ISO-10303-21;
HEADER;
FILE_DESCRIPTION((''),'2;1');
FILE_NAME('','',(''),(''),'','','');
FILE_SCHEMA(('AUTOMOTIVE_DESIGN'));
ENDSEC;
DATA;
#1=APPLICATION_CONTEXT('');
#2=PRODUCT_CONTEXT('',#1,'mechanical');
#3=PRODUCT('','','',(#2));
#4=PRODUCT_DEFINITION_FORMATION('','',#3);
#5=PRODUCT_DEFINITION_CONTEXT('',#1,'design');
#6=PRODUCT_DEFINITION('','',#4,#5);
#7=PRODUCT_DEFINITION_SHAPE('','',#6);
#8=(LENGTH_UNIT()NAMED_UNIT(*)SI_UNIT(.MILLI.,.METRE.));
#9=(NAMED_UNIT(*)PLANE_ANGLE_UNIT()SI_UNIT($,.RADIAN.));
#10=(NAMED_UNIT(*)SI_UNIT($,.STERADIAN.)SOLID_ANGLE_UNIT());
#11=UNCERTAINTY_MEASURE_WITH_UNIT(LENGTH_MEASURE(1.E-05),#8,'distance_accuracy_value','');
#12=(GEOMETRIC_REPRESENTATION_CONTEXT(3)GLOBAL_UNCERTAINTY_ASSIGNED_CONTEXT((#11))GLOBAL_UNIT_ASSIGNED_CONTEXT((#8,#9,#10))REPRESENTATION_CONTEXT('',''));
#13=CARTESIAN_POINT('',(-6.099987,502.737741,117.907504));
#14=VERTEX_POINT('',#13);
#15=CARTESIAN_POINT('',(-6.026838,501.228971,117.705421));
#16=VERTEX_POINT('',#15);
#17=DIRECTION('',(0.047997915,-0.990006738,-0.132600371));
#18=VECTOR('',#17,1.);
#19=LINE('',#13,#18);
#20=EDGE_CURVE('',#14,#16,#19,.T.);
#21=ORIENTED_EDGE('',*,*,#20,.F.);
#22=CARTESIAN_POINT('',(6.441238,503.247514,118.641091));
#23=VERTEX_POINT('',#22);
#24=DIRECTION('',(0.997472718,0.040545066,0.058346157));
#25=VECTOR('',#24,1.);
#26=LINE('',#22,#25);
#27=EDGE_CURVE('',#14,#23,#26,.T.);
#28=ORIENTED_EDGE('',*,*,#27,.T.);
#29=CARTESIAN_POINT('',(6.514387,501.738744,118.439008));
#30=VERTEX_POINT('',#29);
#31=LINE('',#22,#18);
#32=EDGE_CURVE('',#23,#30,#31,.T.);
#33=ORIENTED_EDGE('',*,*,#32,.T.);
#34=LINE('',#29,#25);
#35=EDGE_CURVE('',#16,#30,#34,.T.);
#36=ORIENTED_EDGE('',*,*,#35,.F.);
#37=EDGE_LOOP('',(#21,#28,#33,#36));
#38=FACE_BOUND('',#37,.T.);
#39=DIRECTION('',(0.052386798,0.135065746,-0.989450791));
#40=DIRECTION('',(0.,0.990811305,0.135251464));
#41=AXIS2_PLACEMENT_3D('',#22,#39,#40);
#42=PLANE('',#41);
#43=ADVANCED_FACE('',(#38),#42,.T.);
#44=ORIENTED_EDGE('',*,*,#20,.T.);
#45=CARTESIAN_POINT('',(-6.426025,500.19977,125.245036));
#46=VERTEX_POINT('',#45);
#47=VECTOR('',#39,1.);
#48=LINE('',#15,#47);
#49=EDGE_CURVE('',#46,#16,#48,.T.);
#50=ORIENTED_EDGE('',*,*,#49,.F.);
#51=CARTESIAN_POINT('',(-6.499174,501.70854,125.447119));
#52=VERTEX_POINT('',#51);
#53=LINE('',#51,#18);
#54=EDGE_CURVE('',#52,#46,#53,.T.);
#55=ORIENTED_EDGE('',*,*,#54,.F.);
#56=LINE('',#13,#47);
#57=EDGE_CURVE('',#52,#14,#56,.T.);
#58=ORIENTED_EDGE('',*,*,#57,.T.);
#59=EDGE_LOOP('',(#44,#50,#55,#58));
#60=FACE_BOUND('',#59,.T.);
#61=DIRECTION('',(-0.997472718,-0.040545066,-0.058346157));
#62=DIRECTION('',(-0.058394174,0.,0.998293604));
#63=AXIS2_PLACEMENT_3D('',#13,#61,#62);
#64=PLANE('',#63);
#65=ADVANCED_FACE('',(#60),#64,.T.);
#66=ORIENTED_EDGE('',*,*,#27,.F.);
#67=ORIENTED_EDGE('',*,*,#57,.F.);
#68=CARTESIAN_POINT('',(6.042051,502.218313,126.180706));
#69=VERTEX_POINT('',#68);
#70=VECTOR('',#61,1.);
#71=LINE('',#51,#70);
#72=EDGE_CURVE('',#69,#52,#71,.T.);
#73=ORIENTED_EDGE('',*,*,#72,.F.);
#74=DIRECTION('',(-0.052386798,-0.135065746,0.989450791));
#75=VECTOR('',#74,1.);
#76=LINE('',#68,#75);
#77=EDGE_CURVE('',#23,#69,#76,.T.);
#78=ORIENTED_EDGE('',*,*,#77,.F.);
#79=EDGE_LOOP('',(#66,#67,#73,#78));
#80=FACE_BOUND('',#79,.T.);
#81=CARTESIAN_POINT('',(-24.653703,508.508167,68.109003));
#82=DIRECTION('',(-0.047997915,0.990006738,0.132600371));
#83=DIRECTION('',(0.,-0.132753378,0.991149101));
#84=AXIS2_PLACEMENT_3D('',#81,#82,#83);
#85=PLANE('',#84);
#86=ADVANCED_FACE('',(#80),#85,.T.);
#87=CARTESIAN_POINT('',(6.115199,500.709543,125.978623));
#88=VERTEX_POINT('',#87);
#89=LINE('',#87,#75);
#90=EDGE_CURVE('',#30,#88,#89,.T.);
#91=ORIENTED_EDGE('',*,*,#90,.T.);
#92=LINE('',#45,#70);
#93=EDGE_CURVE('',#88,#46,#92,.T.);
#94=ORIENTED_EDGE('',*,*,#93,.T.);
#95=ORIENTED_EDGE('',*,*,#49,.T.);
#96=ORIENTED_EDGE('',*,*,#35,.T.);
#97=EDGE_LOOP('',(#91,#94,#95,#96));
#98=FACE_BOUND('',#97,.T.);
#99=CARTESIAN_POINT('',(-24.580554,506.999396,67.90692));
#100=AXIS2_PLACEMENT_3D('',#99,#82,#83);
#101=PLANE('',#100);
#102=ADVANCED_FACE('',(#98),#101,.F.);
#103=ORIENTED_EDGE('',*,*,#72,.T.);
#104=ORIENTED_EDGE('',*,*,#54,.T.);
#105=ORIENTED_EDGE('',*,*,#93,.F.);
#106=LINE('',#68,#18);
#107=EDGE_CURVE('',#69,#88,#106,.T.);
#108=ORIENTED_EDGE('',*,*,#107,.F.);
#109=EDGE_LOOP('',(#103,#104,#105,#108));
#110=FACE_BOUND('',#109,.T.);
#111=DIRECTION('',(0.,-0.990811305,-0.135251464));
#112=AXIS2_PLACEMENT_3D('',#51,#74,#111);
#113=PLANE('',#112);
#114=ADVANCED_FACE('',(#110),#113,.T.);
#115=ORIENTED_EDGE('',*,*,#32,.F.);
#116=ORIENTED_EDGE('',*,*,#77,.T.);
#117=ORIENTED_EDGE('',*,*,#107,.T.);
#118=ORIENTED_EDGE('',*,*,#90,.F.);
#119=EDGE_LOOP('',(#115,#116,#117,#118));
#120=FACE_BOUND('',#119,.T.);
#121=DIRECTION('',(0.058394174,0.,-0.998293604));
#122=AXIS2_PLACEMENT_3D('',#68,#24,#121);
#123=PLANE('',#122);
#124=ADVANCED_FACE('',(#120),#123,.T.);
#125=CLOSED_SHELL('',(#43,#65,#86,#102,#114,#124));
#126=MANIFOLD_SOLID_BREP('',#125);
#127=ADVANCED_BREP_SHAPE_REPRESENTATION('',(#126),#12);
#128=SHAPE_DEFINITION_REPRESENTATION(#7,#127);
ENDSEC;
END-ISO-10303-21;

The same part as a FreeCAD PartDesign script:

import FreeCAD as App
import Part
import Sketcher
Q = App.Units.Quantity


def add_polygon(sketch, points):
    """Adds a closed chain of lines whose ends are joined by coincident constraints."""
    first, n = sketch.GeometryCount, len(points)
    for a, b in zip(points, points[1:] + points[:1]):
        sketch.addGeometry(Part.LineSegment(App.Vector(*a, 0), App.Vector(*b, 0)), False)
    for i in range(n):
        sketch.addConstraint(Sketcher.Constraint("Coincident", first + i, 2, first + (i + 1) % n, 1))

doc = App.newDocument("Part")
params = doc.addObject("Spreadsheet::Sheet", "Params")
for row, (alias, value) in enumerate([
    ("sketch1_length", "0.3 in"),
    ("sketch1_length2", "0.495 in"),
    ("pad1_length", "0.06 in"),
], start=1):
    params.set(f"A{row}", alias)
    params.set(f"B{row}", "=" + value)
    params.setAlias(f"B{row}", alias)

body = doc.addObject("PartDesign::Body", "Body")

# Sketch on an angled plane
sketch1 = body.newObject("Sketcher::SketchObject", "Sketch")
sketch1.Placement = App.Placement(App.Vector(-24.580554, 506.999396, 67.90692), App.Rotation(App.Vector(-0.998847436, -0.04757309, -0.006371885), App.Vector(0, 0.132753378, -0.991149101), App.Vector(0.047997915, -0.990006738, -0.132600371), "ZXY"))
add_polygon(sketch1, [(-19, -50), (-31, -51), (-31, -58), (-18, -58)])  # lines 0-3
sketch1.addConstraint(Sketcher.Constraint("Perpendicular", 0, 1))
sketch1.addConstraint(Sketcher.Constraint("Perpendicular", 1, 2))
sketch1.addConstraint(Sketcher.Constraint("Perpendicular", 2, 3))
sketch1.addConstraint(Sketcher.Constraint("Distance", 1, Q("0.3 in")))
sketch1.addConstraint(Sketcher.Constraint("Distance", 0, Q("0.495 in")))
sketch1.addConstraint(Sketcher.Constraint("DistanceX", 0, 2, -1, 1, 31.130821))
sketch1.addConstraint(Sketcher.Constraint("DistanceX", 0, 2, 1, 2, 0.399648))
sketch1.addConstraint(Sketcher.Constraint("DistanceY", 0, 2, -1, 1, 50.783203))
sketch1.setExpression("Constraints[7]", "Params.sketch1_length")
sketch1.setExpression("Constraints[8]", "Params.sketch1_length2")
pad1 = body.newObject("PartDesign::Pad", "Pad")
pad1.Profile = sketch1
pad1.setExpression("Length", "Params.pad1_length")
pad1.Reversed = True

doc.recompute()
